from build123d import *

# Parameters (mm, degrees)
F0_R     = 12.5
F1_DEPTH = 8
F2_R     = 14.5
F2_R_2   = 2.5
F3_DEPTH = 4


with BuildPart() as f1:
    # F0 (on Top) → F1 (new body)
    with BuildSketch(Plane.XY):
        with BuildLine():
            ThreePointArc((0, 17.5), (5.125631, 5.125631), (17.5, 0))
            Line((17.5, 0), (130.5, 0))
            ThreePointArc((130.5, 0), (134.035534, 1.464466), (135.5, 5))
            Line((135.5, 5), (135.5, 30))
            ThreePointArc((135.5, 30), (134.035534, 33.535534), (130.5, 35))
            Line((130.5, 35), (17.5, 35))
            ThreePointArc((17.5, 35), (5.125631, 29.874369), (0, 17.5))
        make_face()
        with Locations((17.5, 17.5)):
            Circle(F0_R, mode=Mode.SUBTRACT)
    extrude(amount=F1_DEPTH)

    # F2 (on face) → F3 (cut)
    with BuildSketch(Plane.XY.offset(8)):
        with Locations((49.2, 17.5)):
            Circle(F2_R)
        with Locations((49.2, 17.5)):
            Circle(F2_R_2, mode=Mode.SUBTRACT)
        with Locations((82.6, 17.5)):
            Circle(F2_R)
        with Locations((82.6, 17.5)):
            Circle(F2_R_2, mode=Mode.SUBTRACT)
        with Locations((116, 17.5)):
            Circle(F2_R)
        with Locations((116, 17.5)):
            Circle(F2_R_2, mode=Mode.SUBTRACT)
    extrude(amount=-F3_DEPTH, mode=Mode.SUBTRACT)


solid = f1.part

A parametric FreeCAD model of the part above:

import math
import FreeCAD as App
import Part
import Sketcher
from FreeCAD import Vector
Q = App.Units.Quantity

doc = App.newDocument("Part")
body = doc.addObject("PartDesign::Body", "Body")

sketch1 = doc.addObject("Sketcher::SketchObject", "Sketch")
body.addObject(sketch1)
sketch1.AttachmentSupport = (doc.XY_Plane, [""])
sketch1.MapMode = "FlatFace"
sketch1.addGeometry(Part.ArcOfCircle(Part.Circle(Vector(17.499999, 17.499999, 0), Vector(0, 0, 1), 17.499999), math.radians(179.999996), math.radians(270.000004)), False)
sketch1.addGeometry(Part.LineSegment(Vector(17.5, 0, 0), Vector(130.5, 0, 0)), False)
sketch1.addGeometry(Part.ArcOfCircle(Part.Circle(Vector(130.5, 5, 0), Vector(0, 0, 1), 5), math.radians(-90.000004), math.radians(0.000004)), False)
sketch1.addGeometry(Part.LineSegment(Vector(135.5, 5, 0), Vector(135.5, 30, 0)), False)
sketch1.addGeometry(Part.ArcOfCircle(Part.Circle(Vector(130.5, 30, 0), Vector(0, 0, 1), 5), math.radians(-0.000004), math.radians(90.000004)), False)
sketch1.addGeometry(Part.LineSegment(Vector(130.5, 35, 0), Vector(17.5, 35, 0)), False)
sketch1.addGeometry(Part.ArcOfCircle(Part.Circle(Vector(17.499999, 17.500001, 0), Vector(0, 0, 1), 17.499999), math.radians(89.999996), math.radians(180.000004)), False)
sketch1.addGeometry(Part.Circle(Vector(17.5, 17.5, 0), Vector(0, 0, 1), 12.5), False)
sketch1.addConstraint(Sketcher.Constraint("Tangent", 0, 2, 1, 1))
sketch1.addConstraint(Sketcher.Constraint("Tangent", 1, 2, 2, 1))
sketch1.addConstraint(Sketcher.Constraint("Tangent", 2, 2, 3, 1))
sketch1.addConstraint(Sketcher.Constraint("Tangent", 3, 2, 4, 1))
sketch1.addConstraint(Sketcher.Constraint("Tangent", 4, 2, 5, 1))
sketch1.addConstraint(Sketcher.Constraint("Tangent", 5, 2, 6, 1))
sketch1.addConstraint(Sketcher.Constraint("Tangent", 6, 2, 0, 1))
sketch1.addConstraint(Sketcher.Constraint("Horizontal", 1))
sketch1.addConstraint(Sketcher.Constraint("Vertical", 3))
sketch1.addConstraint(Sketcher.Constraint("Horizontal", 5))
sketch1.addConstraint(Sketcher.Constraint("Coincident", 7, 3, 0, 3))
sketch1.addConstraint(Sketcher.Constraint("Equal", 2, 4))
sketch1.addConstraint(Sketcher.Constraint("Equal", 0, 6))
sketch1.addConstraint(Sketcher.Constraint("PointOnObject", 0, 2, -1))
sketch1.addConstraint(Sketcher.Constraint("PointOnObject", 6, 2, -2))
sketch1.addConstraint(Sketcher.Constraint("Horizontal", 7, 3, 6, 2))
sketch1.addConstraint(Sketcher.Constraint("Diameter", 7, Q("25 mm")))
sketch1.addConstraint(Sketcher.Constraint("Radius", 2, Q("5 mm")))
sketch1.addConstraint(Sketcher.Constraint("Radius", 0, Q("17.499999 mm")))
sketch1.addConstraint(Sketcher.Constraint("DistanceX", 1, 1, 1, 2, Q("113 mm")))
pad1 = doc.addObject("PartDesign::Pad", "Pad")
body.addObject(pad1)
pad1.Profile = sketch1
pad1.Length = 8

sketch2 = doc.addObject("Sketcher::SketchObject", "Sketch001")
body.addObject(sketch2)
sketch2.AttachmentSupport = (doc.XY_Plane, [""])
sketch2.MapMode = "FlatFace"
sketch2.AttachmentOffset = App.Placement(Vector(0, 0, 8), App.Rotation())
sketch2.addGeometry(Part.Circle(Vector(49.2, 17.5, 0), Vector(0, 0, 1), 14.5), False)
sketch2.addGeometry(Part.Circle(Vector(49.2, 17.5, 0), Vector(0, 0, 1), 2.5), False)
sketch2.addGeometry(Part.Circle(Vector(82.6, 17.5, 0), Vector(0, 0, 1), 14.5), False)
sketch2.addGeometry(Part.Circle(Vector(82.6, 17.5, 0), Vector(0, 0, 1), 2.5), False)
sketch2.addGeometry(Part.Circle(Vector(116, 17.5, 0), Vector(0, 0, 1), 14.5), False)
sketch2.addGeometry(Part.Circle(Vector(116, 17.5, 0), Vector(0, 0, 1), 2.5), False)
sketch2.addConstraint(Sketcher.Constraint("Coincident", 1, 3, 0, 3))
sketch2.addConstraint(Sketcher.Constraint("Coincident", 3, 3, 2, 3))
sketch2.addConstraint(Sketcher.Constraint("Coincident", 5, 3, 4, 3))
sketch2.addConstraint(Sketcher.Constraint("Equal", 0, 2))
sketch2.addConstraint(Sketcher.Constraint("Equal", 1, 3))
sketch2.addConstraint(Sketcher.Constraint("Equal", 2, 4))
sketch2.addConstraint(Sketcher.Constraint("Equal", 3, 5))
sketch2.addConstraint(Sketcher.Constraint("Horizontal", 1, 3, 2, 3))
sketch2.addConstraint(Sketcher.Constraint("Horizontal", 3, 3, 4, 3))
sketch2.addConstraint(Sketcher.Constraint("Diameter", 0, Q("29 mm")))
sketch2.addConstraint(Sketcher.Constraint("Diameter", 1, Q("5 mm")))
sketch2.addConstraint(Sketcher.Constraint("DistanceX", -1, 1, 4, 3, Q("116 mm")))
sketch2.addConstraint(Sketcher.Constraint("DistanceX", -1, 1, 0, 3, Q("49.2 mm")))
sketch2.addConstraint(Sketcher.Constraint("DistanceY", -1, 1, 0, 3, Q("17.5 mm")))
sketch2.addConstraint(Sketcher.Constraint("DistanceX", -1, 1, 2, 3, Q("82.6 mm")))
pocket1 = doc.addObject("PartDesign::Pocket", "Pocket")
body.addObject(pocket1)
pocket1.Profile = sketch2
pocket1.Length = 4

doc.recompute()
